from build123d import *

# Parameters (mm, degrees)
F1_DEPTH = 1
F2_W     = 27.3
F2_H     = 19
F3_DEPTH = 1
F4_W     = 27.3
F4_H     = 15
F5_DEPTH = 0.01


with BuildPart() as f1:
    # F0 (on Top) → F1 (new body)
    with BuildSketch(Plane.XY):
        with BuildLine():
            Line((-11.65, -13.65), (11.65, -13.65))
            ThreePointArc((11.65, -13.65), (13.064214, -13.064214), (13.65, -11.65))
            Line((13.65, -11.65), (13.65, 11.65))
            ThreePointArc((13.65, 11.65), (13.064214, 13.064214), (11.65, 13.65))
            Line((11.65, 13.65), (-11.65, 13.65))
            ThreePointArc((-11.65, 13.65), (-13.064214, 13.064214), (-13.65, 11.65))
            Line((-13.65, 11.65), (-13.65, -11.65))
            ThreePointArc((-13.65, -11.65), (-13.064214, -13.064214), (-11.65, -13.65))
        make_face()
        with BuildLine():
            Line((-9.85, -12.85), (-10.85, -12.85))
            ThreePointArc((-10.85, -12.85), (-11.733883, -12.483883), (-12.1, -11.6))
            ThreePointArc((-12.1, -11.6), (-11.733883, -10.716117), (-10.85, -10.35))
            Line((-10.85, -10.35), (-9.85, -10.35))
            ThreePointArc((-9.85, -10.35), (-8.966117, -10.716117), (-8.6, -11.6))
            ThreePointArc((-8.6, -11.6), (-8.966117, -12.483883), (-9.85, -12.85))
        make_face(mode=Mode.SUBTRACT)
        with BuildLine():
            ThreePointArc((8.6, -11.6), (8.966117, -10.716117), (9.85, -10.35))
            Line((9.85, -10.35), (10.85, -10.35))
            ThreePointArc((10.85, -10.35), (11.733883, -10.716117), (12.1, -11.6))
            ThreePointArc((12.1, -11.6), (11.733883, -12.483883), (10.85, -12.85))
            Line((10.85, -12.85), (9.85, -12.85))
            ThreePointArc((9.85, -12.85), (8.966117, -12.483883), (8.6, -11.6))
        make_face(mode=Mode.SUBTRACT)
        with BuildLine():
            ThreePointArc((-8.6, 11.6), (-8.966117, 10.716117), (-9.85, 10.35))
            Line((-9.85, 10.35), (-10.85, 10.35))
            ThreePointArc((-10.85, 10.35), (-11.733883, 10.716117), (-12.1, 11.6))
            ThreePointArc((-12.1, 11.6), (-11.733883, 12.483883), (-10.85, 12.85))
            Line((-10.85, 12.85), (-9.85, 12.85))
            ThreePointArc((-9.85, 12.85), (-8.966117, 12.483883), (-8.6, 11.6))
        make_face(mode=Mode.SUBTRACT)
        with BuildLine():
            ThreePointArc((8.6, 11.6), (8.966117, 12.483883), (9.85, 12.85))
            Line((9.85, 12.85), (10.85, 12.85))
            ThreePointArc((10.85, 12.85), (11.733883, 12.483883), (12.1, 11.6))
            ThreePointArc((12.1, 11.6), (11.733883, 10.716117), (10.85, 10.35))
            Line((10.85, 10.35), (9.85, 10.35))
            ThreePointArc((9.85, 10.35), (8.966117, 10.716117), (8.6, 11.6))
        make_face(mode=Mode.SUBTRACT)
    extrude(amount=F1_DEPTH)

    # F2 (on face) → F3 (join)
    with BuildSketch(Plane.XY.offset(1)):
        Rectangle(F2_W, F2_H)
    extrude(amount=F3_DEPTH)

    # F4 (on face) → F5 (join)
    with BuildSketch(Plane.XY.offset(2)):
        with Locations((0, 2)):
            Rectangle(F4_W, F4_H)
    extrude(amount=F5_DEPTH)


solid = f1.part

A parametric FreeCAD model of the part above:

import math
import FreeCAD as App
import Part
import Sketcher


def add_polygon(sketch, points):
    """Adds a closed chain of lines whose ends are joined by coincident constraints."""
    first, n = sketch.GeometryCount, len(points)
    for a, b in zip(points, points[1:] + points[:1]):
        sketch.addGeometry(Part.LineSegment(App.Vector(*a, 0), App.Vector(*b, 0)), False)
    for i in range(n):
        sketch.addConstraint(Sketcher.Constraint("Coincident", first + i, 2, first + (i + 1) % n, 1))

doc = App.newDocument("Part")
params = doc.addObject("Spreadsheet::Sheet", "Params")
for row, (alias, value) in enumerate([
    ("sketch1_radius", "1.999999 mm"),
    ("sketch1_width", "1 mm"),
    ("sketch1_radius2", "1.250002 mm"),
    ("sketch1_width2", "23.3 mm"),
    ("pad1_length", "1 mm"),
    ("sketch2_height", "19 mm"),
    ("sketch2_width", "27.3 mm"),
    ("pad2_length", "1 mm"),
    ("sketch3_height", "15 mm"),
    ("sketch3_width", "27.3 mm"),
    ("pad3_length", "0.01 mm"),
], start=1):
    params.set(f"A{row}", alias)
    params.set(f"B{row}", "=" + value)
    params.setAlias(f"B{row}", alias)

body = doc.addObject("PartDesign::Body", "Body")

# Sketch on XY plane
sketch1 = doc.addObject("Sketcher::SketchObject", "Sketch")
body.addObject(sketch1)
sketch1.AttachmentSupport = (doc.XY_Plane, [""])
sketch1.MapMode = "FlatFace"
sketch1.addGeometry([
    Part.LineSegment(App.Vector(-11.7, -13.7, 0), App.Vector(11.7, -13.7, 0)),  # 0
    Part.ArcOfCircle(Part.Circle(App.Vector(11.7, -11.7, 0), App.Vector(0, 0, 1), 2), math.radians(-90), math.radians(0)),  # 1
    Part.LineSegment(App.Vector(13.7, -11.7, 0), App.Vector(13.7, 11.7, 0)),  # 2
    Part.ArcOfCircle(Part.Circle(App.Vector(11.7, 11.7, 0), App.Vector(0, 0, 1), 2), math.radians(0), math.radians(90)),  # 3
    Part.LineSegment(App.Vector(11.7, 13.7, 0), App.Vector(-11.7, 13.7, 0)),  # 4
    Part.ArcOfCircle(Part.Circle(App.Vector(-11.7, 11.7, 0), App.Vector(0, 0, 1), 2), math.radians(90), math.radians(180)),  # 5
    Part.LineSegment(App.Vector(-13.7, 11.7, 0), App.Vector(-13.7, -11.7, 0)),  # 6
    Part.ArcOfCircle(Part.Circle(App.Vector(-11.7, -11.7, 0), App.Vector(0, 0, 1), 2), math.radians(180), math.radians(270)),  # 7
    Part.ArcOfCircle(Part.Circle(App.Vector(-9.9, -11.6, 0), App.Vector(0, 0, 1), 1.3), math.radians(-90), math.radians(0)),  # 8
    Part.LineSegment(App.Vector(-9.8, -12.8, 0), App.Vector(-10.8, -12.8, 0)),  # 9
    Part.ArcOfCircle(Part.Circle(App.Vector(-10.8, -11.6, 0), App.Vector(0, 0, 1), 1.3), math.radians(-180), math.radians(-90)),  # 10
    Part.ArcOfCircle(Part.Circle(App.Vector(-10.8, -11.6, 0), App.Vector(0, 0, 1), 1.3), math.radians(90), math.radians(180)),  # 11
    Part.LineSegment(App.Vector(-10.8, -10.3, 0), App.Vector(-9.8, -10.3, 0)),  # 12
    Part.ArcOfCircle(Part.Circle(App.Vector(-9.9, -11.6, 0), App.Vector(0, 0, 1), 1.3), math.radians(0), math.radians(90)),  # 13
    Part.ArcOfCircle(Part.Circle(App.Vector(9.9, -11.6, 0), App.Vector(0, 0, 1), 1.3), math.radians(-180), math.radians(-90)),  # 14
    Part.ArcOfCircle(Part.Circle(App.Vector(9.9, -11.6, 0), App.Vector(0, 0, 1), 1.3), math.radians(90), math.radians(180)),  # 15
    Part.LineSegment(App.Vector(9.8, -10.3, 0), App.Vector(10.8, -10.3, 0)),  # 16
    Part.ArcOfCircle(Part.Circle(App.Vector(10.8, -11.6, 0), App.Vector(0, 0, 1), 1.3), math.radians(0), math.radians(90)),  # 17
    Part.ArcOfCircle(Part.Circle(App.Vector(10.8, -11.6, 0), App.Vector(0, 0, 1), 1.3), math.radians(-90), math.radians(0)),  # 18
    Part.LineSegment(App.Vector(10.8, -12.8, 0), App.Vector(9.8, -12.8, 0)),  # 19
    Part.ArcOfCircle(Part.Circle(App.Vector(-9.9, 11.6, 0), App.Vector(0, 0, 1), 1.3), math.radians(0), math.radians(90)),  # 20
    Part.ArcOfCircle(Part.Circle(App.Vector(-9.9, 11.6, 0), App.Vector(0, 0, 1), 1.3), math.radians(-90), math.radians(0)),  # 21
    Part.LineSegment(App.Vector(-9.8, 10.3, 0), App.Vector(-10.8, 10.3, 0)),  # 22
    Part.ArcOfCircle(Part.Circle(App.Vector(-10.8, 11.6, 0), App.Vector(0, 0, 1), 1.3), math.radians(-180), math.radians(-90)),  # 23
    Part.ArcOfCircle(Part.Circle(App.Vector(-10.8, 11.6, 0), App.Vector(0, 0, 1), 1.3), math.radians(90), math.radians(180)),  # 24
    Part.LineSegment(App.Vector(-10.8, 12.8, 0), App.Vector(-9.8, 12.8, 0)),  # 25
    Part.ArcOfCircle(Part.Circle(App.Vector(9.9, 11.6, 0), App.Vector(0, 0, 1), 1.3), math.radians(-180), math.radians(-90)),  # 26
    Part.ArcOfCircle(Part.Circle(App.Vector(9.9, 11.6, 0), App.Vector(0, 0, 1), 1.3), math.radians(90), math.radians(180)),  # 27
    Part.LineSegment(App.Vector(9.8, 12.8, 0), App.Vector(10.8, 12.8, 0)),  # 28
    Part.ArcOfCircle(Part.Circle(App.Vector(10.8, 11.6, 0), App.Vector(0, 0, 1), 1.3), math.radians(0), math.radians(90)),  # 29
    Part.ArcOfCircle(Part.Circle(App.Vector(10.8, 11.6, 0), App.Vector(0, 0, 1), 1.3), math.radians(-90), math.radians(0)),  # 30
    Part.LineSegment(App.Vector(10.8, 10.3, 0), App.Vector(9.8, 10.3, 0)),  # 31
], False)
sketch1.addConstraint([
    Sketcher.Constraint("Tangent", 0, 2, 1, 1),
    Sketcher.Constraint("Tangent", 1, 2, 2, 1),
    Sketcher.Constraint("Tangent", 2, 2, 3, 1),
    Sketcher.Constraint("Tangent", 3, 2, 4, 1),
    Sketcher.Constraint("Tangent", 4, 2, 5, 1),
    Sketcher.Constraint("Tangent", 5, 2, 6, 1),
    Sketcher.Constraint("Tangent", 6, 2, 7, 1),
    Sketcher.Constraint("Tangent", 7, 2, 0, 1),
    Sketcher.Constraint("Tangent", 8, 1, 9, 1),
    Sketcher.Constraint("Tangent", 9, 2, 10, 2),
    Sketcher.Constraint("Coincident", 10, 1, 11, 2),
    Sketcher.Constraint("Tangent", 11, 1, 12, 1),
    Sketcher.Constraint("Tangent", 12, 2, 13, 2),
    Sketcher.Constraint("Coincident", 13, 1, 8, 2),
    Sketcher.Constraint("Coincident", 14, 1, 15, 2),
    Sketcher.Constraint("Tangent", 15, 1, 16, 1),
    Sketcher.Constraint("Tangent", 16, 2, 17, 2),
    Sketcher.Constraint("Coincident", 17, 1, 18, 2),
    Sketcher.Constraint("Tangent", 18, 1, 19, 1),
    Sketcher.Constraint("Tangent", 19, 2, 14, 2),
    Sketcher.Constraint("Coincident", 20, 1, 21, 2),
    Sketcher.Constraint("Tangent", 21, 1, 22, 1),
    Sketcher.Constraint("Tangent", 22, 2, 23, 2),
    Sketcher.Constraint("Coincident", 23, 1, 24, 2),
    Sketcher.Constraint("Tangent", 24, 1, 25, 1),
    Sketcher.Constraint("Tangent", 25, 2, 20, 2),
    Sketcher.Constraint("Coincident", 26, 1, 27, 2),
    Sketcher.Constraint("Tangent", 27, 1, 28, 1),
    Sketcher.Constraint("Tangent", 28, 2, 29, 2),
    Sketcher.Constraint("Coincident", 29, 1, 30, 2),
    Sketcher.Constraint("Tangent", 30, 1, 31, 1),
    Sketcher.Constraint("Tangent", 31, 2, 26, 2),
    Sketcher.Constraint("Horizontal", 0),
    Sketcher.Constraint("Vertical", 2),
    Sketcher.Constraint("Horizontal", 4),
    Sketcher.Constraint("Vertical", 6),
    Sketcher.Constraint("Horizontal", 9),
    Sketcher.Constraint("Horizontal", 12),
    Sketcher.Constraint("Horizontal", 16),
    Sketcher.Constraint("Horizontal", 19),
    Sketcher.Constraint("Horizontal", 22),
    Sketcher.Constraint("Horizontal", 25),
    Sketcher.Constraint("Horizontal", 28),
    Sketcher.Constraint("Horizontal", 31),
    Sketcher.Constraint("Coincident", 11, 3, 10, 3),
    Sketcher.Constraint("Coincident", 13, 3, 8, 3),
    Sketcher.Constraint("Coincident", 15, 3, 14, 3),
    Sketcher.Constraint("Coincident", 18, 3, 17, 3),
    Sketcher.Constraint("Coincident", 21, 3, 20, 3),
    Sketcher.Constraint("Coincident", 24, 3, 23, 3),
    Sketcher.Constraint("Coincident", 27, 3, 26, 3),
    Sketcher.Constraint("Coincident", 30, 3, 29, 3),
    Sketcher.Constraint("Equal", 1, 3),
    Sketcher.Constraint("Equal", 3, 5),
    Sketcher.Constraint("Equal", 5, 7),
    Sketcher.Constraint("Equal", 13, 14),
    Sketcher.Constraint("Equal", 18, 20),
    Sketcher.Constraint("Equal", 24, 26),
    Sketcher.Constraint("Symmetric", 1, 3, 5, 3, -1, 1),
    Sketcher.Constraint("Symmetric", 14, 3, 20, 3, -1, 1),
    Sketcher.Constraint("Symmetric", 8, 3, 26, 3, -1, 1),
    Sketcher.Constraint("Symmetric", 17, 1, 23, 1, -1, 1),
    Sketcher.Constraint("Symmetric", 10, 1, 29, 1, -1, 1),
    Sketcher.Constraint("Symmetric", 8, 3, 14, 3, -2),
    Sketcher.Constraint("Symmetric", 10, 1, 17, 1, -2),
    Sketcher.Constraint("Horizontal", 18, 3, 10, 1),
    Sketcher.Constraint("Horizontal", 10, 1, 13, 1),
    Sketcher.Constraint("Horizontal", 13, 1, 14, 1),
    Sketcher.Constraint("Horizontal", 30, 3, 20, 1),
    Sketcher.Constraint("Horizontal", 23, 1, 26, 1),
    Sketcher.Constraint("Equal", 4, 2),
    Sketcher.Constraint("Radius", 1, 1.999999),
    Sketcher.Constraint("DistanceX", 9, 2, 9, 1, 1.0),
    Sketcher.Constraint("Radius", 8, 1.250002),
    Sketcher.Constraint("DistanceX", 0, 1, 0, 2, 23.3),
    Sketcher.Constraint("DistanceY", 8, 3, -1, 1, 11.599998),
    Sketcher.Constraint("DistanceX", 10, 1, -1, 1, 12.1),
])
sketch1.setExpression("Constraints[71]", "Params.sketch1_radius")
sketch1.setExpression("Constraints[72]", "Params.sketch1_width")
sketch1.setExpression("Constraints[73]", "Params.sketch1_radius2")
sketch1.setExpression("Constraints[74]", "Params.sketch1_width2")
pad1 = doc.addObject("PartDesign::Pad", "Pad")
body.addObject(pad1)
pad1.Profile = sketch1
pad1.setExpression("Length", "Params.pad1_length")

# Sketch on XY plane
sketch2 = doc.addObject("Sketcher::SketchObject", "Sketch001")
body.addObject(sketch2)
sketch2.AttachmentSupport = (doc.XY_Plane, [""])
sketch2.MapMode = "FlatFace"
sketch2.AttachmentOffset = App.Placement(App.Vector(0, 0, 1), App.Rotation())
add_polygon(sketch2, [(-14, 10), (-14, -10), (14, -10), (14, 10)])  # lines 0-3
sketch2.addConstraint([
    Sketcher.Constraint("Vertical", 0),
    Sketcher.Constraint("Horizontal", 1),
    Sketcher.Constraint("Vertical", 2),
    Sketcher.Constraint("Horizontal", 3),
    Sketcher.Constraint("Symmetric", 0, 2, 2, 2, -1, 1),
    Sketcher.Constraint("DistanceY", 0, 2, 0, 1, 19.0),
    Sketcher.Constraint("DistanceX", 1, 1, 1, 2, 27.3),
])
sketch2.setExpression("Constraints[9]", "Params.sketch2_height")
sketch2.setExpression("Constraints[10]", "Params.sketch2_width")
pad2 = doc.addObject("PartDesign::Pad", "Pad001")
body.addObject(pad2)
pad2.Profile = sketch2
pad2.setExpression("Length", "Params.pad2_length")

# Sketch on XY plane
sketch3 = doc.addObject("Sketcher::SketchObject", "Sketch002")
body.addObject(sketch3)
sketch3.AttachmentSupport = (doc.XY_Plane, [""])
sketch3.MapMode = "FlatFace"
sketch3.AttachmentOffset = App.Placement(App.Vector(0, 0, 2), App.Rotation())
add_polygon(sketch3, [(-14, 10), (-14, -6), (14, -6), (14, 10)])  # lines 0-3
sketch3.addConstraint([
    Sketcher.Constraint("Vertical", 0),
    Sketcher.Constraint("Horizontal", 1),
    Sketcher.Constraint("Vertical", 2),
    Sketcher.Constraint("Horizontal", 3),
    Sketcher.Constraint("DistanceY", 0, 2, 0, 1, 15.0),
    Sketcher.Constraint("DistanceX", 1, 1, 1, 2, 27.3),
    Sketcher.Constraint("DistanceY", 0, 2, -1, 1, 5.5),
    Sketcher.Constraint("DistanceX", 0, 2, -1, 1, 13.65),
])
sketch3.setExpression("Constraints[8]", "Params.sketch3_height")
sketch3.setExpression("Constraints[9]", "Params.sketch3_width")
pad3 = doc.addObject("PartDesign::Pad", "Pad002")
body.addObject(pad3)
pad3.Profile = sketch3
pad3.setExpression("Length", "Params.pad3_length")

doc.recompute()
